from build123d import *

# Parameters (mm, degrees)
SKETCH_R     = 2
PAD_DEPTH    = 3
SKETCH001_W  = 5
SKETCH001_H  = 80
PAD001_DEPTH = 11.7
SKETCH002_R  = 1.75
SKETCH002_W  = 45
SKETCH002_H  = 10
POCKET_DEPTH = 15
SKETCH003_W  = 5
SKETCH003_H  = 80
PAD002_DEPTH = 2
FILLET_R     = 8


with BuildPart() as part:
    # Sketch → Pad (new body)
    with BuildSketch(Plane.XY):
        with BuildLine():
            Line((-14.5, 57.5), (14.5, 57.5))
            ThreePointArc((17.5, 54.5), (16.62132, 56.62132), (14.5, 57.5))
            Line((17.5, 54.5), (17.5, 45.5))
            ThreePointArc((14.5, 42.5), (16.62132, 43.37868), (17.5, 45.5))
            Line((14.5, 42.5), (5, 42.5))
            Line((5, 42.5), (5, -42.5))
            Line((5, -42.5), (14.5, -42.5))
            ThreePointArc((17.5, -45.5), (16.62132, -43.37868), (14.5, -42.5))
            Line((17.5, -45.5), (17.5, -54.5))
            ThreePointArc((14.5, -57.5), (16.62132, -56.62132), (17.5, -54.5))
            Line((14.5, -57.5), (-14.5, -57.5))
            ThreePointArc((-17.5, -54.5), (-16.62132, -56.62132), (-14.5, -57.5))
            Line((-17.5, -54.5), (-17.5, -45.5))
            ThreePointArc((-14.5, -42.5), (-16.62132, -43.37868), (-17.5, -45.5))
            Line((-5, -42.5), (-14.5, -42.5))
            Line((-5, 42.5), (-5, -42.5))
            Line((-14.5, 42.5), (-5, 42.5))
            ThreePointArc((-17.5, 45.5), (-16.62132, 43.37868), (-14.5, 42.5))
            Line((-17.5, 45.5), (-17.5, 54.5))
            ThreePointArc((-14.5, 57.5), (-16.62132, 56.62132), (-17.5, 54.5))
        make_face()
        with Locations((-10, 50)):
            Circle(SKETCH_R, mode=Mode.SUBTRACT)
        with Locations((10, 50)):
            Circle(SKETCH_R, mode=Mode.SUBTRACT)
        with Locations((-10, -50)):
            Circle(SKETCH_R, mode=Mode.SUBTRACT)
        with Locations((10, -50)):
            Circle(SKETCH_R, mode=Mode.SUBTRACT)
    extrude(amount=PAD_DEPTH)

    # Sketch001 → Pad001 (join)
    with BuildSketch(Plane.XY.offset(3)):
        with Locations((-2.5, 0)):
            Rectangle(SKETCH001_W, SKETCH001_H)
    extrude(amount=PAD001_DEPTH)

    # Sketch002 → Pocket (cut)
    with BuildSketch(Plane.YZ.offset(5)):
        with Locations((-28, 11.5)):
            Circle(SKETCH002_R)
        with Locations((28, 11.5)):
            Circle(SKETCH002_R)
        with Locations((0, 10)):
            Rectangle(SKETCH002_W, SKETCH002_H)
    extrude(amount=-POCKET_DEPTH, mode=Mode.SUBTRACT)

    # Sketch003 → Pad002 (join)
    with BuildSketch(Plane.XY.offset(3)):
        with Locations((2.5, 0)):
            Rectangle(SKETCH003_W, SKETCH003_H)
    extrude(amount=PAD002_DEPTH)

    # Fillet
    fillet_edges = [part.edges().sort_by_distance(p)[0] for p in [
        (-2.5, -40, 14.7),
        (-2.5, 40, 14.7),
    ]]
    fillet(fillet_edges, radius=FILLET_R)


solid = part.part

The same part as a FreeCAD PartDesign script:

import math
import FreeCAD as App
import Part
import Sketcher
Q = App.Units.Quantity


def edges_at(feature, points):
    """Names of the edges that pass closest to the given points."""
    edges = feature.Shape.Edges
    near = lambda p: min(range(len(edges)), key=lambda i: edges[i].distToShape(Part.Vertex(*p))[0])
    return sorted({f"Edge{near(p) + 1}" for p in points})

doc = App.newDocument("Part")
body = doc.addObject("PartDesign::Body", "Body")

sketch1 = body.newObject("Sketcher::SketchObject", "Sketch")
sketch1.AttachmentSupport = (doc.getObject("XY_Plane"), [""])
sketch1.MapMode = "FlatFace"
sketch1.addGeometry(Part.LineSegment(App.Vector(14.5, 57.5, 0), App.Vector(-14.5, 57.5, 0)), False)
sketch1.addGeometry(Part.ArcOfCircle(Part.Circle(App.Vector(-14.5, 54.5, 0), App.Vector(0, 0, 1), 3), math.radians(90), math.radians(180)), False)
sketch1.addGeometry(Part.LineSegment(App.Vector(-17.5, 54.5, 0), App.Vector(-17.5, 45.5, 0)), False)
sketch1.addGeometry(Part.ArcOfCircle(Part.Circle(App.Vector(-14.5, 45.5, 0), App.Vector(0, 0, 1), 3), math.radians(-180), math.radians(-90)), False)
sketch1.addGeometry(Part.LineSegment(App.Vector(-14.5, 42.5, 0), App.Vector(-5, 42.5, 0)), False)
sketch1.addGeometry(Part.LineSegment(App.Vector(-5, 42.5, 0), App.Vector(-5, -42.5, 0)), False)
sketch1.addGeometry(Part.LineSegment(App.Vector(-5, -42.5, 0), App.Vector(-14.5, -42.5, 0)), False)
sketch1.addGeometry(Part.ArcOfCircle(Part.Circle(App.Vector(-14.5, -45.5, 0), App.Vector(0, 0, 1), 3), math.radians(90), math.radians(180)), False)
sketch1.addGeometry(Part.LineSegment(App.Vector(-17.5, -45.5, 0), App.Vector(-17.5, -54.5, 0)), False)
sketch1.addGeometry(Part.ArcOfCircle(Part.Circle(App.Vector(-14.5, -54.5, 0), App.Vector(0, 0, 1), 3), math.radians(-180), math.radians(-90)), False)
sketch1.addGeometry(Part.LineSegment(App.Vector(-14.5, -57.5, 0), App.Vector(14.5, -57.5, 0)), False)
sketch1.addGeometry(Part.ArcOfCircle(Part.Circle(App.Vector(14.5, -54.5, 0), App.Vector(0, 0, 1), 3), math.radians(-90), math.radians(0)), False)
sketch1.addGeometry(Part.LineSegment(App.Vector(17.5, -54.5, 0), App.Vector(17.5, -45.5, 0)), False)
sketch1.addGeometry(Part.ArcOfCircle(Part.Circle(App.Vector(14.5, -45.5, 0), App.Vector(0, 0, 1), 3), math.radians(0), math.radians(90)), False)
sketch1.addGeometry(Part.LineSegment(App.Vector(14.5, -42.5, 0), App.Vector(5, -42.5, 0)), False)
sketch1.addGeometry(Part.LineSegment(App.Vector(5, -42.5, 0), App.Vector(5, 42.5, 0)), False)
sketch1.addGeometry(Part.LineSegment(App.Vector(5, 42.5, 0), App.Vector(14.5, 42.5, 0)), False)
sketch1.addGeometry(Part.ArcOfCircle(Part.Circle(App.Vector(14.5, 45.5, 0), App.Vector(0, 0, 1), 3), math.radians(-90), math.radians(0)), False)
sketch1.addGeometry(Part.LineSegment(App.Vector(17.5, 45.5, 0), App.Vector(17.5, 54.5, 0)), False)
sketch1.addGeometry(Part.ArcOfCircle(Part.Circle(App.Vector(14.5, 54.5, 0), App.Vector(0, 0, 1), 3), math.radians(0), math.radians(90)), False)
sketch1.addGeometry(Part.Circle(App.Vector(10, -50, 0), App.Vector(0, 0, 1), 2), False)
sketch1.addGeometry(Part.Circle(App.Vector(-10, -50, 0), App.Vector(0, 0, 1), 2), False)
sketch1.addGeometry(Part.Circle(App.Vector(10, 50, 0), App.Vector(0, 0, 1), 2), False)
sketch1.addGeometry(Part.Circle(App.Vector(-10, 50, 0), App.Vector(0, 0, 1), 2), False)
sketch1.addConstraint(Sketcher.Constraint("Tangent", 0, 2, 1, 1))
sketch1.addConstraint(Sketcher.Constraint("Tangent", 1, 2, 2, 1))
sketch1.addConstraint(Sketcher.Constraint("Tangent", 2, 2, 3, 1))
sketch1.addConstraint(Sketcher.Constraint("Tangent", 3, 2, 4, 1))
sketch1.addConstraint(Sketcher.Constraint("Coincident", 4, 2, 5, 1))
sketch1.addConstraint(Sketcher.Constraint("Coincident", 5, 2, 6, 1))
sketch1.addConstraint(Sketcher.Constraint("Tangent", 6, 2, 7, 1))
sketch1.addConstraint(Sketcher.Constraint("Tangent", 7, 2, 8, 1))
sketch1.addConstraint(Sketcher.Constraint("Tangent", 8, 2, 9, 1))
sketch1.addConstraint(Sketcher.Constraint("Tangent", 9, 2, 10, 1))
sketch1.addConstraint(Sketcher.Constraint("Tangent", 10, 2, 11, 1))
sketch1.addConstraint(Sketcher.Constraint("Tangent", 11, 2, 12, 1))
sketch1.addConstraint(Sketcher.Constraint("Tangent", 12, 2, 13, 1))
sketch1.addConstraint(Sketcher.Constraint("Tangent", 13, 2, 14, 1))
sketch1.addConstraint(Sketcher.Constraint("Coincident", 14, 2, 15, 1))
sketch1.addConstraint(Sketcher.Constraint("Coincident", 15, 2, 16, 1))
sketch1.addConstraint(Sketcher.Constraint("Tangent", 16, 2, 17, 1))
sketch1.addConstraint(Sketcher.Constraint("Tangent", 17, 2, 18, 1))
sketch1.addConstraint(Sketcher.Constraint("Tangent", 18, 2, 19, 1))
sketch1.addConstraint(Sketcher.Constraint("Tangent", 19, 2, 0, 1))
sketch1.addConstraint(Sketcher.Constraint("Horizontal", 0))
sketch1.addConstraint(Sketcher.Constraint("Vertical", 2))
sketch1.addConstraint(Sketcher.Constraint("Horizontal", 4))
sketch1.addConstraint(Sketcher.Constraint("Vertical", 5))
sketch1.addConstraint(Sketcher.Constraint("Horizontal", 6))
sketch1.addConstraint(Sketcher.Constraint("Vertical", 8))
sketch1.addConstraint(Sketcher.Constraint("Horizontal", 10))
sketch1.addConstraint(Sketcher.Constraint("Vertical", 12))
sketch1.addConstraint(Sketcher.Constraint("Horizontal", 14))
sketch1.addConstraint(Sketcher.Constraint("Vertical", 15))
sketch1.addConstraint(Sketcher.Constraint("Horizontal", 16))
sketch1.addConstraint(Sketcher.Constraint("Vertical", 18))
sketch1.addConstraint(Sketcher.Constraint("Equal", 1, 3))
sketch1.addConstraint(Sketcher.Constraint("Equal", 3, 7))
sketch1.addConstraint(Sketcher.Constraint("Equal", 7, 9))
sketch1.addConstraint(Sketcher.Constraint("Equal", 9, 11))
sketch1.addConstraint(Sketcher.Constraint("Equal", 11, 13))
sketch1.addConstraint(Sketcher.Constraint("Equal", 13, 17))
sketch1.addConstraint(Sketcher.Constraint("Equal", 17, 19))
sketch1.addConstraint(Sketcher.Constraint("Equal", 20, 21))
sketch1.addConstraint(Sketcher.Constraint("Equal", 21, 22))
sketch1.addConstraint(Sketcher.Constraint("Equal", 22, 23))
sketch1.addConstraint(Sketcher.Constraint("Symmetric", 1, 3, 11, 3, -1, 1))
sketch1.addConstraint(Sketcher.Constraint("Symmetric", 7, 3, 17, 3, -1, 1))
sketch1.addConstraint(Sketcher.Constraint("Symmetric", 21, 3, 22, 3, -1, 1))
sketch1.addConstraint(Sketcher.Constraint("Symmetric", 20, 3, 23, 3, -1, 1))
sketch1.addConstraint(Sketcher.Constraint("Symmetric", 4, 2, 14, 2, -1, 1))
sketch1.addConstraint(Sketcher.Constraint("Symmetric", 7, 3, 13, 3, -2))
sketch1.addConstraint(Sketcher.Constraint("Symmetric", 20, 3, 21, 3, -2))
sketch1.addConstraint(Sketcher.Constraint("Diameter", 20, Q("4 mm")))
sketch1.addConstraint(Sketcher.Constraint("Radius", 1, Q("3.000001 mm")))
sketch1.addConstraint(Sketcher.Constraint("DistanceX", 0, 2, 0, 1, Q("29 mm")))
sketch1.addConstraint(Sketcher.Constraint("DistanceY", 2, 2, 2, 1, Q("9 mm")))
sketch1.addConstraint(Sketcher.Constraint("DistanceY", 5, 2, 5, 1, Q("85 mm")))
sketch1.addConstraint(Sketcher.Constraint("DistanceX", 4, 1, 4, 2, Q("9.5 mm")))
sketch1.addConstraint(Sketcher.Constraint("DistanceX", -1, 1, 20, 3, Q("10 mm")))
sketch1.addConstraint(Sketcher.Constraint("DistanceY", 20, 3, -1, 1, Q("50 mm")))
pad1 = body.newObject("PartDesign::Pad", "Pad")
pad1.Profile = sketch1
pad1.Length = 3

sketch2 = body.newObject("Sketcher::SketchObject", "Sketch001")
sketch2.AttachmentSupport = (doc.getObject("XY_Plane"), [""])
sketch2.MapMode = "FlatFace"
sketch2.AttachmentOffset = App.Placement(App.Vector(0, 0, 3), App.Rotation())
sketch2.addGeometry(Part.LineSegment(App.Vector(-5, 40, 0), App.Vector(-5, -40, 0)), False)
sketch2.addGeometry(Part.LineSegment(App.Vector(-5, -40, 0), App.Vector(0, -40, 0)), False)
sketch2.addGeometry(Part.LineSegment(App.Vector(0, -40, 0), App.Vector(0, 40, 0)), False)
sketch2.addGeometry(Part.LineSegment(App.Vector(0, 40, 0), App.Vector(-5, 40, 0)), False)
sketch2.addConstraint(Sketcher.Constraint("Coincident", 0, 2, 1, 1))
sketch2.addConstraint(Sketcher.Constraint("Coincident", 1, 2, 2, 1))
sketch2.addConstraint(Sketcher.Constraint("Coincident", 2, 2, 3, 1))
sketch2.addConstraint(Sketcher.Constraint("Coincident", 3, 2, 0, 1))
sketch2.addConstraint(Sketcher.Constraint("Vertical", 0))
sketch2.addConstraint(Sketcher.Constraint("Horizontal", 1))
sketch2.addConstraint(Sketcher.Constraint("Vertical", 2))
sketch2.addConstraint(Sketcher.Constraint("Horizontal", 3))
sketch2.addConstraint(Sketcher.Constraint("Symmetric", 1, 2, 2, 2, -1, 1))
sketch2.addConstraint(Sketcher.Constraint("DistanceX", 1, 1, 1, 2, Q("5 mm")))
sketch2.addConstraint(Sketcher.Constraint("DistanceY", 0, 2, 0, 1, Q("80 mm")))
pad2 = body.newObject("PartDesign::Pad", "Pad001")
pad2.Profile = sketch2
pad2.Length = 11.7

sketch3 = body.newObject("Sketcher::SketchObject", "Sketch002")
sketch3.AttachmentSupport = (doc.getObject("YZ_Plane"), [""])
sketch3.MapMode = "FlatFace"
sketch3.AttachmentOffset = App.Placement(App.Vector(0, 0, 5), App.Rotation())
sketch3.addGeometry(Part.Circle(App.Vector(-28, 11.5, 0), App.Vector(0, 0, 1), 1.8), False)
sketch3.addGeometry(Part.Circle(App.Vector(28, 11.5, 0), App.Vector(0, 0, 1), 1.8), False)
sketch3.addGeometry(Part.LineSegment(App.Vector(-22.5, 15, 0), App.Vector(-22.5, 5, 0)), False)
sketch3.addGeometry(Part.LineSegment(App.Vector(-22.5, 5, 0), App.Vector(22.5, 5, 0)), False)
sketch3.addGeometry(Part.LineSegment(App.Vector(22.5, 5, 0), App.Vector(22.5, 15, 0)), False)
sketch3.addGeometry(Part.LineSegment(App.Vector(22.5, 15, 0), App.Vector(-22.5, 15, 0)), False)
sketch3.addConstraint(Sketcher.Constraint("Coincident", 2, 2, 3, 1))
sketch3.addConstraint(Sketcher.Constraint("Coincident", 3, 2, 4, 1))
sketch3.addConstraint(Sketcher.Constraint("Coincident", 4, 2, 5, 1))
sketch3.addConstraint(Sketcher.Constraint("Coincident", 5, 2, 2, 1))
sketch3.addConstraint(Sketcher.Constraint("Vertical", 2))
sketch3.addConstraint(Sketcher.Constraint("Horizontal", 3))
sketch3.addConstraint(Sketcher.Constraint("Vertical", 4))
sketch3.addConstraint(Sketcher.Constraint("Horizontal", 5))
sketch3.addConstraint(Sketcher.Constraint("Equal", 0, 1))
sketch3.addConstraint(Sketcher.Constraint("Symmetric", 0, 3, 1, 3, -2))
sketch3.addConstraint(Sketcher.Constraint("Diameter", 0, Q("3.5 mm")))
sketch3.addConstraint(Sketcher.Constraint("DistanceX", 3, 1, 3, 2, Q("45 mm")))
sketch3.addConstraint(Sketcher.Constraint("DistanceY", 2, 2, 2, 1, Q("10 mm")))
sketch3.addConstraint(Sketcher.Constraint("DistanceX", 0, 3, -1, 1, Q("28 mm")))
sketch3.addConstraint(Sketcher.Constraint("DistanceY", -1, 1, 2, 2, Q("5 mm")))
sketch3.addConstraint(Sketcher.Constraint("DistanceY", -1, 1, 0, 3, Q("11.5 mm")))
sketch3.addConstraint(Sketcher.Constraint("DistanceX", 2, 2, -1, 1, Q("22.5 mm")))
pocket1 = body.newObject("PartDesign::Pocket", "Pocket")
pocket1.Profile = sketch3
pocket1.Length = 15

sketch4 = body.newObject("Sketcher::SketchObject", "Sketch003")
sketch4.AttachmentSupport = (doc.getObject("XY_Plane"), [""])
sketch4.MapMode = "FlatFace"
sketch4.AttachmentOffset = App.Placement(App.Vector(0, 0, 3), App.Rotation())
sketch4.addGeometry(Part.LineSegment(App.Vector(0, 40, 0), App.Vector(0, -40, 0)), False)
sketch4.addGeometry(Part.LineSegment(App.Vector(0, -40, 0), App.Vector(5, -40, 0)), False)
sketch4.addGeometry(Part.LineSegment(App.Vector(5, -40, 0), App.Vector(5, 40, 0)), False)
sketch4.addGeometry(Part.LineSegment(App.Vector(5, 40, 0), App.Vector(0, 40, 0)), False)
sketch4.addConstraint(Sketcher.Constraint("Coincident", 0, 2, 1, 1))
sketch4.addConstraint(Sketcher.Constraint("Coincident", 1, 2, 2, 1))
sketch4.addConstraint(Sketcher.Constraint("Coincident", 2, 2, 3, 1))
sketch4.addConstraint(Sketcher.Constraint("Coincident", 3, 2, 0, 1))
sketch4.addConstraint(Sketcher.Constraint("Vertical", 0))
sketch4.addConstraint(Sketcher.Constraint("Horizontal", 1))
sketch4.addConstraint(Sketcher.Constraint("Vertical", 2))
sketch4.addConstraint(Sketcher.Constraint("Horizontal", 3))
sketch4.addConstraint(Sketcher.Constraint("Symmetric", 0, 2, 3, 2, -1, 1))
sketch4.addConstraint(Sketcher.Constraint("DistanceX", 1, 1, 1, 2, Q("5 mm")))
sketch4.addConstraint(Sketcher.Constraint("DistanceY", 0, 2, 0, 1, Q("80 mm")))
pad3 = body.newObject("PartDesign::Pad", "Pad002")
pad3.Profile = sketch4
pad3.Length = 2
doc.recompute()

fillet = body.newObject("PartDesign::Fillet", "Fillet")
fillet.Base = (pad3, edges_at(pad3, [(-2.5, -40, 14.7), (-2.5, 40, 14.7)]))
fillet.Radius = 8

doc.recompute()
